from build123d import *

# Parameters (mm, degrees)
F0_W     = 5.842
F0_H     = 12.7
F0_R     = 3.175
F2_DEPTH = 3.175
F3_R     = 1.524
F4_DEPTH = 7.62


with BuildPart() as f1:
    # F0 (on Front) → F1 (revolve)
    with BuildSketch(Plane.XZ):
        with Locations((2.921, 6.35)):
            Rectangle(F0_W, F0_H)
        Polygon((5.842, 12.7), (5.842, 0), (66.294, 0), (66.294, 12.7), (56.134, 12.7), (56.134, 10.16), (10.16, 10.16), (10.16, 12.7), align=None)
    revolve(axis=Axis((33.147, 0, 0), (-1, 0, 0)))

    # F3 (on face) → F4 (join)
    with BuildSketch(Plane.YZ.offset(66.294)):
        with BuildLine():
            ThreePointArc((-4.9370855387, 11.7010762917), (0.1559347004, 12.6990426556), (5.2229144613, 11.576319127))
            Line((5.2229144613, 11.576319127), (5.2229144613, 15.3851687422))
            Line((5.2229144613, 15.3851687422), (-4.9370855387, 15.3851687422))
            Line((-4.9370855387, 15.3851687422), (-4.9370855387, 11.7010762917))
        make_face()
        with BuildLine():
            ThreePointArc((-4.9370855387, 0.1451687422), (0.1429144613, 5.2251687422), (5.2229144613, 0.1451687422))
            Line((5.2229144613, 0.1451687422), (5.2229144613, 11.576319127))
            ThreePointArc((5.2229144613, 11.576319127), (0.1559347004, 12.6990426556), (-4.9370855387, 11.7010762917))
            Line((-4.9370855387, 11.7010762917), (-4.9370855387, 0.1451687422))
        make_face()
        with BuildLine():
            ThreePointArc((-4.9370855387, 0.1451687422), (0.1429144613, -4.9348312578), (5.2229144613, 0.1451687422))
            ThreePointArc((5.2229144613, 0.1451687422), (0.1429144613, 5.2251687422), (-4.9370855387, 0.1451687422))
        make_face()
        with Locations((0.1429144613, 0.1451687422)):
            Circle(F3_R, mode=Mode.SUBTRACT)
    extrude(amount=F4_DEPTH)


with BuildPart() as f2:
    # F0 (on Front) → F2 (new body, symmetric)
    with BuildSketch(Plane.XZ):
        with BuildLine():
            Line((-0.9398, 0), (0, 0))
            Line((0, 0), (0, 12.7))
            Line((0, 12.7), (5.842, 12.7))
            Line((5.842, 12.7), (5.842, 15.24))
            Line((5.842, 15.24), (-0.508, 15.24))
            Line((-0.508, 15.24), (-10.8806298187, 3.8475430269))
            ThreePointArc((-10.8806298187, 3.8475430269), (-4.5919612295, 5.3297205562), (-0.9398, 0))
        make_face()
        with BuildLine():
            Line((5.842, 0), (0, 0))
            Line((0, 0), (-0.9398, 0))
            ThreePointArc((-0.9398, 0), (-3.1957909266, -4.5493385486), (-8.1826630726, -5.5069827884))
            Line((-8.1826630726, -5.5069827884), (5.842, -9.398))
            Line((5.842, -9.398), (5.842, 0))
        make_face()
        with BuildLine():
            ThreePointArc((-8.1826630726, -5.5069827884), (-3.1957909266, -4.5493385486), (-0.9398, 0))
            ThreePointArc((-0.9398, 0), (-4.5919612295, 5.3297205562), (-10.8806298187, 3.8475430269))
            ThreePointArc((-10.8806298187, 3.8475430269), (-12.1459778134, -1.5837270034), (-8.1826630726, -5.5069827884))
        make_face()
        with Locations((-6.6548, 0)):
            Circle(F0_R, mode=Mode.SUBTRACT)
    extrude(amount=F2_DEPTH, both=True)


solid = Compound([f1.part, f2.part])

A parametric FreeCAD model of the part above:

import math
import FreeCAD as App
import Part
import Sketcher
Q = App.Units.Quantity


def add_polygon(sketch, points):
    """Adds a closed chain of lines whose ends are joined by coincident constraints."""
    first, n = sketch.GeometryCount, len(points)
    for a, b in zip(points, points[1:] + points[:1]):
        sketch.addGeometry(Part.LineSegment(App.Vector(*a, 0), App.Vector(*b, 0)), False)
    for i in range(n):
        sketch.addConstraint(Sketcher.Constraint("Coincident", first + i, 2, first + (i + 1) % n, 1))

doc = App.newDocument("Part")
body = doc.addObject("PartDesign::Body", "Body")

# Sketch on XZ plane
sketch1 = body.newObject("Sketcher::SketchObject", "Sketch")
sketch1.AttachmentSupport = (doc.getObject("XZ_Plane"), [""])
sketch1.MapMode = "FlatFace"
add_polygon(sketch1, [(0, 12.7), (0, 0), (66.3, 0), (66.3, 12.7), (56.1, 12.7), (56.1, 10.2), (10.2, 10.2), (10.2, 12.7)])  # lines 0-7
sketch1.addConstraint([
    Sketcher.Constraint("Vertical", 0),
    Sketcher.Constraint("Horizontal", 1),
    Sketcher.Constraint("Vertical", 2),
    Sketcher.Constraint("Horizontal", 3),
    Sketcher.Constraint("Vertical", 4),
    Sketcher.Constraint("Horizontal", 5),
    Sketcher.Constraint("Vertical", 6),
    Sketcher.Constraint("Horizontal", 7),
    Sketcher.Constraint("Coincident", 0, 2, -1, 1),
    Sketcher.Constraint("Horizontal", 3, 2, 6, 2),
    Sketcher.Constraint("Equal", 3, 7),
    Sketcher.Constraint("DistanceX", 3, 2, 3, 1, Q("0.4 in")),
    Sketcher.Constraint("DistanceY", 0, 2, 0, 1, Q("0.5 in")),
    Sketcher.Constraint("DistanceY", 4, 2, 4, 1, Q("0.1 in")),
    Sketcher.Constraint("DistanceX", 1, 1, 1, 2, Q("2.61 in")),
])
revolution = body.newObject("PartDesign::Revolution", "Revolution")
revolution.Profile = sketch1
revolution.ReferenceAxis = (sketch1, ["H_Axis"])
revolution.Angle = 360

# Sketch on YZ plane
sketch2 = body.newObject("Sketcher::SketchObject", "Sketch001")
sketch2.AttachmentSupport = (doc.getObject("YZ_Plane"), [""])
sketch2.MapMode = "FlatFace"
sketch2.AttachmentOffset = App.Placement(App.Vector(0, 0, 2.61 * 25.4), App.Rotation())
sketch2.addGeometry([
    Part.LineSegment(App.Vector(5.2, 15.4, 0), App.Vector(-4.9, 15.4, 0)),  # 0
    Part.LineSegment(App.Vector(-4.9, 15.4, 0), App.Vector(-4.9, 0.1, 0)),  # 1
    Part.ArcOfCircle(Part.Circle(App.Vector(0.1, 0.1, 0), App.Vector(0, 0, 1), 5.1), math.radians(180), math.radians(360)),  # 2
    Part.LineSegment(App.Vector(5.2, 0.1, 0), App.Vector(5.2, 15.4, 0)),  # 3
    Part.Circle(App.Vector(0.1, 0.1, 0), App.Vector(0, 0, 1), 1.5),  # 4
], False)
sketch2.addConstraint([
    Sketcher.Constraint("Coincident", 0, 2, 1, 1),
    Sketcher.Constraint("Tangent", 1, 2, 2, 1),
    Sketcher.Constraint("Tangent", 2, 2, 3, 1),
    Sketcher.Constraint("Coincident", 3, 2, 0, 1),
    Sketcher.Constraint("Horizontal", 0),
    Sketcher.Constraint("Vertical", 1),
    Sketcher.Constraint("Vertical", 3),
    Sketcher.Constraint("Coincident", 4, 3, 2, 3),
    Sketcher.Constraint("Radius", 2, Q("0.2 in")),
    Sketcher.Constraint("Diameter", 4, Q("0.12 in")),
    Sketcher.Constraint("DistanceY", 1, 2, 1, 1, Q("0.6 in")),
    Sketcher.Constraint("DistanceY", -1, 1, 2, 3, 0.145169),
    Sketcher.Constraint("DistanceX", -1, 1, 2, 3, 0.142914),
])
pad1 = body.newObject("PartDesign::Pad", "Pad")
pad1.Profile = sketch2
pad1.Length = Q("0.3 in")
body2 = doc.addObject("PartDesign::Body", "Body001")

# Sketch on XZ plane
sketch3 = body2.newObject("Sketcher::SketchObject", "Sketch002")
sketch3.AttachmentSupport = (doc.getObject("XZ_Plane001"), [""])
sketch3.MapMode = "FlatFace"
sketch3.addGeometry([
    Part.LineSegment(App.Vector(0, 0, 0), App.Vector(0, 12.7, 0)),  # 0
    Part.LineSegment(App.Vector(0, 12.7, 0), App.Vector(5.8, 12.7, 0)),  # 1
    Part.LineSegment(App.Vector(5.8, 12.7, 0), App.Vector(5.8, 15.2, 0)),  # 2
    Part.LineSegment(App.Vector(5.8, 15.2, 0), App.Vector(-0.5, 15.2, 0)),  # 3
    Part.LineSegment(App.Vector(-0.5, 15.2, 0), App.Vector(-10.9, 3.8, 0)),  # 4
    Part.ArcOfCircle(Part.Circle(App.Vector(-6.7, 0, 0), App.Vector(0, 0, 1), 5.7), math.radians(138), math.radians(254)),  # 5
    Part.LineSegment(App.Vector(-8.2, -5.5, 0), App.Vector(5.8, -9.4, 0)),  # 6
    Part.LineSegment(App.Vector(5.8, -9.4, 0), App.Vector(5.8, 0, 0)),  # 7
    Part.LineSegment(App.Vector(5.8, 0, 0), App.Vector(0, 0, 0)),  # 8
    Part.Circle(App.Vector(-6.7, 0, 0), App.Vector(0, 0, 1), 3.2),  # 9
], False)
sketch3.addConstraint([
    Sketcher.Constraint("Coincident", 0, 2, 1, 1),
    Sketcher.Constraint("Coincident", 1, 2, 2, 1),
    Sketcher.Constraint("Coincident", 2, 2, 3, 1),
    Sketcher.Constraint("Coincident", 3, 2, 4, 1),
    Sketcher.Constraint("Tangent", 4, 2, 5, 1),
    Sketcher.Constraint("Tangent", 5, 2, 6, 1),
    Sketcher.Constraint("Coincident", 6, 2, 7, 1),
    Sketcher.Constraint("Coincident", 7, 2, 8, 1),
    Sketcher.Constraint("Coincident", 8, 2, 0, 1),
    Sketcher.Constraint("Vertical", 0),
    Sketcher.Constraint("Horizontal", 1),
    Sketcher.Constraint("Vertical", 2),
    Sketcher.Constraint("Horizontal", 3),
    Sketcher.Constraint("Vertical", 7),
    Sketcher.Constraint("Horizontal", 8),
    Sketcher.Constraint("Coincident", 8, 2, -1, 1),
    Sketcher.Constraint("Coincident", 9, 3, 5, 3),
    Sketcher.Constraint("PointOnObject", 5, 3, -1),
    Sketcher.Constraint("Vertical", 2, 2, 6, 2),
    Sketcher.Constraint("Diameter", 9, Q("0.25 in")),
    Sketcher.Constraint("DistanceY", 0, 1, 0, 2, Q("0.5 in")),
    Sketcher.Constraint("DistanceY", 2, 1, 2, 2, Q("0.1 in")),
    Sketcher.Constraint("Radius", 5, Q("0.225 in")),
    Sketcher.Constraint("DistanceX", 1, 1, 1, 2, Q("0.23 in")),
    Sketcher.Constraint("DistanceX", 3, 2, 3, 1, Q("0.25 in")),
    Sketcher.Constraint("DistanceY", 7, 1, 7, 2, Q("0.37 in")),
    Sketcher.Constraint("DistanceX", 5, 3, -1, 1, Q("0.262 in")),
])
pad2 = body2.newObject("PartDesign::Pad", "Pad001")
pad2.Profile = sketch3
pad2.Length = Q("0.25 in")
pad2.Midplane = True

doc.recompute()
